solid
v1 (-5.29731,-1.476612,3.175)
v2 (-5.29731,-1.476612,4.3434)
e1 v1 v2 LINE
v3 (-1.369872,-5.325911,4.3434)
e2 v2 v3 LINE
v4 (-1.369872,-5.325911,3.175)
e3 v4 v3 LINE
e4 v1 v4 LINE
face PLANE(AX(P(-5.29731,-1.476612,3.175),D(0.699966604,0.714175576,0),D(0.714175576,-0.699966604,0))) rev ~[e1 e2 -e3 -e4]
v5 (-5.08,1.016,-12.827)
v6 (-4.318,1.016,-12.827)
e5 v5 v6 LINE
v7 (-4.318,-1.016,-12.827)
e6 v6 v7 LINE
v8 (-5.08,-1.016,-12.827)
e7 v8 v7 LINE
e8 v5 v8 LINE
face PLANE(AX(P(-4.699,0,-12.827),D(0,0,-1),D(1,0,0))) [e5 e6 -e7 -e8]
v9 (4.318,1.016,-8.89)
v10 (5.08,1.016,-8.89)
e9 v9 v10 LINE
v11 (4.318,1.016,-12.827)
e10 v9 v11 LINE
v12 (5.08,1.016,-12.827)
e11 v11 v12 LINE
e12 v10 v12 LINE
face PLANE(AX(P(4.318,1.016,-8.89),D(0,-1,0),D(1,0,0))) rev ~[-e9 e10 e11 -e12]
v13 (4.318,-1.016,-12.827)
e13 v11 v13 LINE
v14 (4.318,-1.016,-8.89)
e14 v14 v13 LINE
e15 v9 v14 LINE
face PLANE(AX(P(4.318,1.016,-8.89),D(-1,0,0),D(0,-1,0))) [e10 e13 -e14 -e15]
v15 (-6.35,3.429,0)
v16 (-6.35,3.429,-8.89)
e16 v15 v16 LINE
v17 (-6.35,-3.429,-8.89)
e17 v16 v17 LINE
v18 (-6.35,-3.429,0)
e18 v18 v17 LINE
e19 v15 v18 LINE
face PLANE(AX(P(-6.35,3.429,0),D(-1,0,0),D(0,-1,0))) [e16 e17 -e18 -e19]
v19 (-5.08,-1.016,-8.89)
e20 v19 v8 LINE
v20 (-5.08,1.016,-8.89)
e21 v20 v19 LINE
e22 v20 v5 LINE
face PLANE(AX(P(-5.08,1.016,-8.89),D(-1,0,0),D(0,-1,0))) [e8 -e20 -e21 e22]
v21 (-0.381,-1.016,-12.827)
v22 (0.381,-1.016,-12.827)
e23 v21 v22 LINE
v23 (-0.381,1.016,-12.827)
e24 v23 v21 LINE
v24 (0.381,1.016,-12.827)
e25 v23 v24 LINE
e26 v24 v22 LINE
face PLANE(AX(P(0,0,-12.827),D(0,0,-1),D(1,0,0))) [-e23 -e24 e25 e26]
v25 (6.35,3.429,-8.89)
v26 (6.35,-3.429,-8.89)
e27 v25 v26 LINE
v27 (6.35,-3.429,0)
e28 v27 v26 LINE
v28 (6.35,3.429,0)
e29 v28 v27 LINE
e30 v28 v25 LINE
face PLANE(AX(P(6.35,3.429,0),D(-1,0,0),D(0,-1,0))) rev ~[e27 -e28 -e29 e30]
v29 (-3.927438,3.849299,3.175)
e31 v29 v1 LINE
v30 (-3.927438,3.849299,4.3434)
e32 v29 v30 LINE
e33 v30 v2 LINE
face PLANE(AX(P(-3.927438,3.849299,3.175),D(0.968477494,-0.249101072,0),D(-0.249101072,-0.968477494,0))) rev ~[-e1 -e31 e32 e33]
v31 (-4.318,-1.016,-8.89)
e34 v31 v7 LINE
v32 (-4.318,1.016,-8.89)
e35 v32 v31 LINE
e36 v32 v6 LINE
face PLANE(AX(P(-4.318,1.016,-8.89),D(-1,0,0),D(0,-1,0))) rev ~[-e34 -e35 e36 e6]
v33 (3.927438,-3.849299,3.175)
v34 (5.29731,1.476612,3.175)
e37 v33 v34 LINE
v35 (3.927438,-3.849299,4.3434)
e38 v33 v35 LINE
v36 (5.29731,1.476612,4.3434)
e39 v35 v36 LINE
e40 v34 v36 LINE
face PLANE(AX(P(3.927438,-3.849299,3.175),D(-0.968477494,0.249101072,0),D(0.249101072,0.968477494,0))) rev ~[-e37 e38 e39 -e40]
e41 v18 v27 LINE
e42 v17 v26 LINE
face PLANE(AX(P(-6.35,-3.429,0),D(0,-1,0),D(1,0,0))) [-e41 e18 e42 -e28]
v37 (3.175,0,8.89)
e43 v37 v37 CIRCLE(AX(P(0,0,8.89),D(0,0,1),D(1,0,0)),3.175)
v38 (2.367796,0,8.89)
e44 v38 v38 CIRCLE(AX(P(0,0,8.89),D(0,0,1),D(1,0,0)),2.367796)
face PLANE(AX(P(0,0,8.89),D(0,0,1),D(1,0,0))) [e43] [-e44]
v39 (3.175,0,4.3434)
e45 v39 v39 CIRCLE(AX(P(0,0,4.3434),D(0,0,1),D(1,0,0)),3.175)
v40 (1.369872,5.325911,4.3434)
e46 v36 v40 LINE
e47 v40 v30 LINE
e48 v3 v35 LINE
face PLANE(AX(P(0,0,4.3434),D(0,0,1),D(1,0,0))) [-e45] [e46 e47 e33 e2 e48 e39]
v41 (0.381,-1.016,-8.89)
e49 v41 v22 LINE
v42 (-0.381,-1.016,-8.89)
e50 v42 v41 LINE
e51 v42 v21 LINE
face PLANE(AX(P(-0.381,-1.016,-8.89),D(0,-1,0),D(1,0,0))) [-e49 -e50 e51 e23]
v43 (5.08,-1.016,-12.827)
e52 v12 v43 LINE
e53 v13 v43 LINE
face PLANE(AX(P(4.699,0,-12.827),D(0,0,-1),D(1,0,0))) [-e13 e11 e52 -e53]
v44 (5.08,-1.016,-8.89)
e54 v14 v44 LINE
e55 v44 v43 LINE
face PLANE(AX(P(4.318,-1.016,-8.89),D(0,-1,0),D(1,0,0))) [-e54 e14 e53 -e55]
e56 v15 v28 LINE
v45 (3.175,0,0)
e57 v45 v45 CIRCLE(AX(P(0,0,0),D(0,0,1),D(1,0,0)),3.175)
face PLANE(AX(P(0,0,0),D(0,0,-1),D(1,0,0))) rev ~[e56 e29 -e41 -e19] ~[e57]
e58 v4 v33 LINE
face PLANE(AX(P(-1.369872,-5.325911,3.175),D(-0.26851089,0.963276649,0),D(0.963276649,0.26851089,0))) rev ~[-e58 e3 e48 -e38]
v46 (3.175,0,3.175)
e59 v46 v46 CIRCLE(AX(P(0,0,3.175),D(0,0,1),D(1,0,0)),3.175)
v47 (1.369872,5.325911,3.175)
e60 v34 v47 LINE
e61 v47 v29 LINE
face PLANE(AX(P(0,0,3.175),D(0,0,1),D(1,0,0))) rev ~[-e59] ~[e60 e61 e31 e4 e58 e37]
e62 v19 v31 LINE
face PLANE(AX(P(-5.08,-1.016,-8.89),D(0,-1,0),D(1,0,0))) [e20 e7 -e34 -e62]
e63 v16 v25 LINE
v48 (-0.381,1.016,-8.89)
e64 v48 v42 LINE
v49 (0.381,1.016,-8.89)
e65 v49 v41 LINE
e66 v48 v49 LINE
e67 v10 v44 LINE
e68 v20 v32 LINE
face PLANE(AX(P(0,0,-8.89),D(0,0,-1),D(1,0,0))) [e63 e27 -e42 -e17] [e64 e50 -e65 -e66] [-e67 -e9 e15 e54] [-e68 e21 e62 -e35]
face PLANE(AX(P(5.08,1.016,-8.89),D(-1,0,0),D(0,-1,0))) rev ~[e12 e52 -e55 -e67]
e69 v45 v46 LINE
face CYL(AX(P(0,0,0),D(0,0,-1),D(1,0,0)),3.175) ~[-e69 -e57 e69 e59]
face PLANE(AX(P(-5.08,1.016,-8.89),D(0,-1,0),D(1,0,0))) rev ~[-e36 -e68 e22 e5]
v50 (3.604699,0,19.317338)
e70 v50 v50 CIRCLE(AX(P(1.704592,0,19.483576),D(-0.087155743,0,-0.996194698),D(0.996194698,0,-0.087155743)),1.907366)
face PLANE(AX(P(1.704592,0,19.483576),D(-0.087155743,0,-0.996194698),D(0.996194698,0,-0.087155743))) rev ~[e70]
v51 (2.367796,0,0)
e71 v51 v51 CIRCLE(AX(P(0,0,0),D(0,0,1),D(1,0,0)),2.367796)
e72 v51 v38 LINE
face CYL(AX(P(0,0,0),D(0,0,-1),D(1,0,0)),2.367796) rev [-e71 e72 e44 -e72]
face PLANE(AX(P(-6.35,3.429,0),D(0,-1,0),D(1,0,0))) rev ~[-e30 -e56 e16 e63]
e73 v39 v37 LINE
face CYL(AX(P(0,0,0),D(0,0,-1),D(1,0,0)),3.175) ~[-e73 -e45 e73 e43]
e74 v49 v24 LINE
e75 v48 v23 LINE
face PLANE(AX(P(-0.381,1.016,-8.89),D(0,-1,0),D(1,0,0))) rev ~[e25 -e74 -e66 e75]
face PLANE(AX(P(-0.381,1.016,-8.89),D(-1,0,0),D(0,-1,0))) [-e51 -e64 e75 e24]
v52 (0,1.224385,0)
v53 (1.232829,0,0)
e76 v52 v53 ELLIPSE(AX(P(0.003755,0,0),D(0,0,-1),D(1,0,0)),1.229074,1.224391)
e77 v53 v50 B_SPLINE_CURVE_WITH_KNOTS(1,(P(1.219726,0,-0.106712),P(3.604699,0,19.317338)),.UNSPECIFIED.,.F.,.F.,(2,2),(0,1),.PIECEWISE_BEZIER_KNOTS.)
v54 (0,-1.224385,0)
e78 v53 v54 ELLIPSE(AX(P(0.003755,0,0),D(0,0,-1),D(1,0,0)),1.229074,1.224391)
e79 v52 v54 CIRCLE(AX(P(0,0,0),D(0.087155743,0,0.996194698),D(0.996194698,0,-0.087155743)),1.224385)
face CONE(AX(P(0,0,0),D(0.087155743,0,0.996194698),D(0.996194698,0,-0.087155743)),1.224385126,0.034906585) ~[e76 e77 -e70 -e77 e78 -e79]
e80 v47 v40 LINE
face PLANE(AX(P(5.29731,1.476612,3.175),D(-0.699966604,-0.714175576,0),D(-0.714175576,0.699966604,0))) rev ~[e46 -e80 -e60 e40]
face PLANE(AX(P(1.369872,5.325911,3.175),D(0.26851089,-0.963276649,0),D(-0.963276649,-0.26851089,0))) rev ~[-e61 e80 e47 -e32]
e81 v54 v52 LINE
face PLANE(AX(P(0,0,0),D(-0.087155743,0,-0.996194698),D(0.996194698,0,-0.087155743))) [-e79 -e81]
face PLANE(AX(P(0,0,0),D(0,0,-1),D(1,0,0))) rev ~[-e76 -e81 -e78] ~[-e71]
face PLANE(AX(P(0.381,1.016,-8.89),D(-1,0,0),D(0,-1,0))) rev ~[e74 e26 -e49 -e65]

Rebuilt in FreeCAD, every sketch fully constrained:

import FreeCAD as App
import Part
import Sketcher

V = App.Vector
Q = App.Units.Quantity


def add_polygon(sketch, points):
    """Adds a closed chain of lines whose ends are joined by coincident constraints."""
    first, n = sketch.GeometryCount, len(points)
    for a, b in zip(points, points[1:] + points[:1]):
        sketch.addGeometry(Part.LineSegment(App.Vector(*a, 0), App.Vector(*b, 0)), False)
    for i in range(n):
        sketch.addConstraint(Sketcher.Constraint("Coincident", first + i, 2, first + (i + 1) % n, 1))

doc = App.newDocument("Part")
body = doc.addObject("PartDesign::Body", "Body")

sketch1 = doc.addObject("Sketcher::SketchObject", "Sketch")
body.addObject(sketch1)
sketch1.AttachmentSupport = (doc.XY_Plane, [""])
sketch1.MapMode = "FlatFace"
sketch1.addGeometry([
    Part.Circle(V(0, 0, 0), V(0, 0, 1), 3.175),
    Part.Circle(V(0, 0, 0), V(0, 0, 1), 2.367796),
], False)
sketch1.addConstraint([
    Sketcher.Constraint("Coincident", 0, 3, -1, 1),
    Sketcher.Constraint("Coincident", 1, 3, -1, 1),
    Sketcher.Constraint("Diameter", 0, Q("0.25 in")),
    Sketcher.Constraint("Diameter", 1, Q("4.735593 mm")),
])
pad1 = doc.addObject("PartDesign::Pad", "Pad")
body.addObject(pad1)
pad1.Profile = sketch1
pad1.Length = Q("0.35 in")

sketch2 = doc.addObject("Sketcher::SketchObject", "Sketch001")
body.addObject(sketch2)
sketch2.AttachmentSupport = (doc.XY_Plane, [""])
sketch2.MapMode = "FlatFace"
add_polygon(sketch2, [(-6.35, -3.429), (-6.35, 3.429), (6.35, 3.429), (6.35, -3.429)])
sketch2.addConstraint([
    Sketcher.Constraint("Vertical", 0),
    Sketcher.Constraint("Horizontal", 1),
    Sketcher.Constraint("Vertical", 2),
    Sketcher.Constraint("Horizontal", 3),
    Sketcher.Constraint("Symmetric", 0, 2, 2, 2, -1, 1),
    Sketcher.Constraint("DistanceX", 1, 1, 1, 2, Q("0.5 in")),
    Sketcher.Constraint("DistanceY", 0, 1, 0, 2, Q("0.27 in")),
])
pad2 = doc.addObject("PartDesign::Pad", "Pad001")
body.addObject(pad2)
pad2.Profile = sketch2
pad2.Length = Q("0.35 in")
pad2.Reversed = True

sketch3 = doc.addObject("Sketcher::SketchObject", "Sketch002")
body.addObject(sketch3)
sketch3.AttachmentSupport = (doc.XY_Plane, [""])
sketch3.MapMode = "FlatFace"
sketch3.AttachmentOffset = App.Placement(V(0, 0, -0.35 * 25.4), App.Rotation())
add_polygon(sketch3, [(-5.08, -1.016), (-5.08, 1.016), (-4.318, 1.016), (-4.318, -1.016)])
add_polygon(sketch3, [(-0.381, -1.016), (-0.381, 1.016), (0.381, 1.016), (0.381, -1.016)])
add_polygon(sketch3, [(4.318, -1.016), (4.318, 1.016), (5.08, 1.016), (5.08, -1.016)])
sketch3.addConstraint([
    Sketcher.Constraint("Vertical", 0),
    Sketcher.Constraint("Horizontal", 1),
    Sketcher.Constraint("Vertical", 2),
    Sketcher.Constraint("Horizontal", 3),
    Sketcher.Constraint("Vertical", 4),
    Sketcher.Constraint("Horizontal", 5),
    Sketcher.Constraint("Vertical", 6),
    Sketcher.Constraint("Horizontal", 7),
    Sketcher.Constraint("Vertical", 8),
    Sketcher.Constraint("Horizontal", 9),
    Sketcher.Constraint("Vertical", 10),
    Sketcher.Constraint("Horizontal", 11),
    Sketcher.Constraint("Symmetric", 4, 2, 6, 2, -1, 1),
    Sketcher.Constraint("Symmetric", 2, 2, 8, 2, -1, 1),
    Sketcher.Constraint("Symmetric", 0, 2, 10, 2, -1, 1),
    Sketcher.Constraint("Horizontal", 1, 2, 4, 2),
    Sketcher.Constraint("Horizontal", 3, 2, 6, 2),
    Sketcher.Constraint("Equal", 3, 5),
    Sketcher.Constraint("DistanceX", 1, 1, 1, 2, Q("0.03 in")),
    Sketcher.Constraint("DistanceY", 0, 1, 0, 2, Q("0.08 in")),
    Sketcher.Constraint("DistanceX", 0, 2, -1, 1, Q("0.2 in")),
])
pad3 = doc.addObject("PartDesign::Pad", "Pad002")
body.addObject(pad3)
pad3.Profile = sketch3
pad3.Length = Q("0.155 in")
pad3.Reversed = True

sketch4 = doc.addObject("Sketcher::SketchObject", "Sketch003")
body.addObject(sketch4)
sketch4.AttachmentSupport = (doc.XY_Plane, [""])
sketch4.MapMode = "FlatFace"
sketch4.AttachmentOffset = App.Placement(V(0, 0, 0.125 * 25.4), App.Rotation())
add_polygon(sketch4, [(-5.29731, -1.476612), (-1.369872, -5.325911), (3.927438, -3.849299), (5.29731, 1.476612), (1.369872, 5.325911), (-3.927438, 3.849299)])
sketch4.addGeometry(Part.Circle(V(0, 0, 0), V(0, 0, 1), 3.175), False)
sketch4.addConstraint([
    Sketcher.Constraint("Coincident", 6, 3, -1, 1),
    Sketcher.Constraint("Symmetric", 0, 2, 3, 2, -1, 1),
    Sketcher.Constraint("Symmetric", 1, 2, 4, 2, -1, 1),
    Sketcher.Constraint("Symmetric", 2, 2, 5, 2, -1, 1),
    Sketcher.Constraint("Equal", 0, 1),
    Sketcher.Constraint("Equal", 1, 2),
    Sketcher.Constraint("Diameter", 6, Q("0.25 in")),
    Sketcher.Constraint("DistanceY", 1, 2, -1, 1, Q("3.849299 mm")),
    Sketcher.Constraint("DistanceY", 2, 2, 3, 2, Q("3.849299 mm")),
    Sketcher.Constraint("Distance", 0, Q("5.499261 mm")),
    Sketcher.Constraint("DistanceX", 0, 2, -1, 1, Q("1.369872 mm")),
])
pad4 = doc.addObject("PartDesign::Pad", "Pad003")
body.addObject(pad4)
pad4.Profile = sketch4
pad4.Length = Q("0.046 in")

sketch5 = doc.addObject("Sketcher::SketchObject", "Sketch004")
body.addObject(sketch5)
sketch5.Placement = App.Placement(V(0, 0, 0), App.Rotation(V(0.996194698, 0, -0.087155743), V(0, -1, 0), V(-0.087155743, 0, -0.996194698), "ZXY"))
sketch5.addGeometry(Part.Circle(V(0, 0, 0), V(0, 0, 1), 1.224385), False)
sketch5.addConstraint([
    Sketcher.Constraint("Coincident", 0, 3, -1, 1),
    Sketcher.Constraint("Diameter", 0, Q("2.44877 mm")),
])
pad5 = doc.addObject("PartDesign::Pad", "Pad004")
body.addObject(pad5)
pad5.Profile = sketch5
pad5.Length = Q("0.77 in")
pad5.Reversed = True
pad5.TaperAngle = 2

doc.recompute()
